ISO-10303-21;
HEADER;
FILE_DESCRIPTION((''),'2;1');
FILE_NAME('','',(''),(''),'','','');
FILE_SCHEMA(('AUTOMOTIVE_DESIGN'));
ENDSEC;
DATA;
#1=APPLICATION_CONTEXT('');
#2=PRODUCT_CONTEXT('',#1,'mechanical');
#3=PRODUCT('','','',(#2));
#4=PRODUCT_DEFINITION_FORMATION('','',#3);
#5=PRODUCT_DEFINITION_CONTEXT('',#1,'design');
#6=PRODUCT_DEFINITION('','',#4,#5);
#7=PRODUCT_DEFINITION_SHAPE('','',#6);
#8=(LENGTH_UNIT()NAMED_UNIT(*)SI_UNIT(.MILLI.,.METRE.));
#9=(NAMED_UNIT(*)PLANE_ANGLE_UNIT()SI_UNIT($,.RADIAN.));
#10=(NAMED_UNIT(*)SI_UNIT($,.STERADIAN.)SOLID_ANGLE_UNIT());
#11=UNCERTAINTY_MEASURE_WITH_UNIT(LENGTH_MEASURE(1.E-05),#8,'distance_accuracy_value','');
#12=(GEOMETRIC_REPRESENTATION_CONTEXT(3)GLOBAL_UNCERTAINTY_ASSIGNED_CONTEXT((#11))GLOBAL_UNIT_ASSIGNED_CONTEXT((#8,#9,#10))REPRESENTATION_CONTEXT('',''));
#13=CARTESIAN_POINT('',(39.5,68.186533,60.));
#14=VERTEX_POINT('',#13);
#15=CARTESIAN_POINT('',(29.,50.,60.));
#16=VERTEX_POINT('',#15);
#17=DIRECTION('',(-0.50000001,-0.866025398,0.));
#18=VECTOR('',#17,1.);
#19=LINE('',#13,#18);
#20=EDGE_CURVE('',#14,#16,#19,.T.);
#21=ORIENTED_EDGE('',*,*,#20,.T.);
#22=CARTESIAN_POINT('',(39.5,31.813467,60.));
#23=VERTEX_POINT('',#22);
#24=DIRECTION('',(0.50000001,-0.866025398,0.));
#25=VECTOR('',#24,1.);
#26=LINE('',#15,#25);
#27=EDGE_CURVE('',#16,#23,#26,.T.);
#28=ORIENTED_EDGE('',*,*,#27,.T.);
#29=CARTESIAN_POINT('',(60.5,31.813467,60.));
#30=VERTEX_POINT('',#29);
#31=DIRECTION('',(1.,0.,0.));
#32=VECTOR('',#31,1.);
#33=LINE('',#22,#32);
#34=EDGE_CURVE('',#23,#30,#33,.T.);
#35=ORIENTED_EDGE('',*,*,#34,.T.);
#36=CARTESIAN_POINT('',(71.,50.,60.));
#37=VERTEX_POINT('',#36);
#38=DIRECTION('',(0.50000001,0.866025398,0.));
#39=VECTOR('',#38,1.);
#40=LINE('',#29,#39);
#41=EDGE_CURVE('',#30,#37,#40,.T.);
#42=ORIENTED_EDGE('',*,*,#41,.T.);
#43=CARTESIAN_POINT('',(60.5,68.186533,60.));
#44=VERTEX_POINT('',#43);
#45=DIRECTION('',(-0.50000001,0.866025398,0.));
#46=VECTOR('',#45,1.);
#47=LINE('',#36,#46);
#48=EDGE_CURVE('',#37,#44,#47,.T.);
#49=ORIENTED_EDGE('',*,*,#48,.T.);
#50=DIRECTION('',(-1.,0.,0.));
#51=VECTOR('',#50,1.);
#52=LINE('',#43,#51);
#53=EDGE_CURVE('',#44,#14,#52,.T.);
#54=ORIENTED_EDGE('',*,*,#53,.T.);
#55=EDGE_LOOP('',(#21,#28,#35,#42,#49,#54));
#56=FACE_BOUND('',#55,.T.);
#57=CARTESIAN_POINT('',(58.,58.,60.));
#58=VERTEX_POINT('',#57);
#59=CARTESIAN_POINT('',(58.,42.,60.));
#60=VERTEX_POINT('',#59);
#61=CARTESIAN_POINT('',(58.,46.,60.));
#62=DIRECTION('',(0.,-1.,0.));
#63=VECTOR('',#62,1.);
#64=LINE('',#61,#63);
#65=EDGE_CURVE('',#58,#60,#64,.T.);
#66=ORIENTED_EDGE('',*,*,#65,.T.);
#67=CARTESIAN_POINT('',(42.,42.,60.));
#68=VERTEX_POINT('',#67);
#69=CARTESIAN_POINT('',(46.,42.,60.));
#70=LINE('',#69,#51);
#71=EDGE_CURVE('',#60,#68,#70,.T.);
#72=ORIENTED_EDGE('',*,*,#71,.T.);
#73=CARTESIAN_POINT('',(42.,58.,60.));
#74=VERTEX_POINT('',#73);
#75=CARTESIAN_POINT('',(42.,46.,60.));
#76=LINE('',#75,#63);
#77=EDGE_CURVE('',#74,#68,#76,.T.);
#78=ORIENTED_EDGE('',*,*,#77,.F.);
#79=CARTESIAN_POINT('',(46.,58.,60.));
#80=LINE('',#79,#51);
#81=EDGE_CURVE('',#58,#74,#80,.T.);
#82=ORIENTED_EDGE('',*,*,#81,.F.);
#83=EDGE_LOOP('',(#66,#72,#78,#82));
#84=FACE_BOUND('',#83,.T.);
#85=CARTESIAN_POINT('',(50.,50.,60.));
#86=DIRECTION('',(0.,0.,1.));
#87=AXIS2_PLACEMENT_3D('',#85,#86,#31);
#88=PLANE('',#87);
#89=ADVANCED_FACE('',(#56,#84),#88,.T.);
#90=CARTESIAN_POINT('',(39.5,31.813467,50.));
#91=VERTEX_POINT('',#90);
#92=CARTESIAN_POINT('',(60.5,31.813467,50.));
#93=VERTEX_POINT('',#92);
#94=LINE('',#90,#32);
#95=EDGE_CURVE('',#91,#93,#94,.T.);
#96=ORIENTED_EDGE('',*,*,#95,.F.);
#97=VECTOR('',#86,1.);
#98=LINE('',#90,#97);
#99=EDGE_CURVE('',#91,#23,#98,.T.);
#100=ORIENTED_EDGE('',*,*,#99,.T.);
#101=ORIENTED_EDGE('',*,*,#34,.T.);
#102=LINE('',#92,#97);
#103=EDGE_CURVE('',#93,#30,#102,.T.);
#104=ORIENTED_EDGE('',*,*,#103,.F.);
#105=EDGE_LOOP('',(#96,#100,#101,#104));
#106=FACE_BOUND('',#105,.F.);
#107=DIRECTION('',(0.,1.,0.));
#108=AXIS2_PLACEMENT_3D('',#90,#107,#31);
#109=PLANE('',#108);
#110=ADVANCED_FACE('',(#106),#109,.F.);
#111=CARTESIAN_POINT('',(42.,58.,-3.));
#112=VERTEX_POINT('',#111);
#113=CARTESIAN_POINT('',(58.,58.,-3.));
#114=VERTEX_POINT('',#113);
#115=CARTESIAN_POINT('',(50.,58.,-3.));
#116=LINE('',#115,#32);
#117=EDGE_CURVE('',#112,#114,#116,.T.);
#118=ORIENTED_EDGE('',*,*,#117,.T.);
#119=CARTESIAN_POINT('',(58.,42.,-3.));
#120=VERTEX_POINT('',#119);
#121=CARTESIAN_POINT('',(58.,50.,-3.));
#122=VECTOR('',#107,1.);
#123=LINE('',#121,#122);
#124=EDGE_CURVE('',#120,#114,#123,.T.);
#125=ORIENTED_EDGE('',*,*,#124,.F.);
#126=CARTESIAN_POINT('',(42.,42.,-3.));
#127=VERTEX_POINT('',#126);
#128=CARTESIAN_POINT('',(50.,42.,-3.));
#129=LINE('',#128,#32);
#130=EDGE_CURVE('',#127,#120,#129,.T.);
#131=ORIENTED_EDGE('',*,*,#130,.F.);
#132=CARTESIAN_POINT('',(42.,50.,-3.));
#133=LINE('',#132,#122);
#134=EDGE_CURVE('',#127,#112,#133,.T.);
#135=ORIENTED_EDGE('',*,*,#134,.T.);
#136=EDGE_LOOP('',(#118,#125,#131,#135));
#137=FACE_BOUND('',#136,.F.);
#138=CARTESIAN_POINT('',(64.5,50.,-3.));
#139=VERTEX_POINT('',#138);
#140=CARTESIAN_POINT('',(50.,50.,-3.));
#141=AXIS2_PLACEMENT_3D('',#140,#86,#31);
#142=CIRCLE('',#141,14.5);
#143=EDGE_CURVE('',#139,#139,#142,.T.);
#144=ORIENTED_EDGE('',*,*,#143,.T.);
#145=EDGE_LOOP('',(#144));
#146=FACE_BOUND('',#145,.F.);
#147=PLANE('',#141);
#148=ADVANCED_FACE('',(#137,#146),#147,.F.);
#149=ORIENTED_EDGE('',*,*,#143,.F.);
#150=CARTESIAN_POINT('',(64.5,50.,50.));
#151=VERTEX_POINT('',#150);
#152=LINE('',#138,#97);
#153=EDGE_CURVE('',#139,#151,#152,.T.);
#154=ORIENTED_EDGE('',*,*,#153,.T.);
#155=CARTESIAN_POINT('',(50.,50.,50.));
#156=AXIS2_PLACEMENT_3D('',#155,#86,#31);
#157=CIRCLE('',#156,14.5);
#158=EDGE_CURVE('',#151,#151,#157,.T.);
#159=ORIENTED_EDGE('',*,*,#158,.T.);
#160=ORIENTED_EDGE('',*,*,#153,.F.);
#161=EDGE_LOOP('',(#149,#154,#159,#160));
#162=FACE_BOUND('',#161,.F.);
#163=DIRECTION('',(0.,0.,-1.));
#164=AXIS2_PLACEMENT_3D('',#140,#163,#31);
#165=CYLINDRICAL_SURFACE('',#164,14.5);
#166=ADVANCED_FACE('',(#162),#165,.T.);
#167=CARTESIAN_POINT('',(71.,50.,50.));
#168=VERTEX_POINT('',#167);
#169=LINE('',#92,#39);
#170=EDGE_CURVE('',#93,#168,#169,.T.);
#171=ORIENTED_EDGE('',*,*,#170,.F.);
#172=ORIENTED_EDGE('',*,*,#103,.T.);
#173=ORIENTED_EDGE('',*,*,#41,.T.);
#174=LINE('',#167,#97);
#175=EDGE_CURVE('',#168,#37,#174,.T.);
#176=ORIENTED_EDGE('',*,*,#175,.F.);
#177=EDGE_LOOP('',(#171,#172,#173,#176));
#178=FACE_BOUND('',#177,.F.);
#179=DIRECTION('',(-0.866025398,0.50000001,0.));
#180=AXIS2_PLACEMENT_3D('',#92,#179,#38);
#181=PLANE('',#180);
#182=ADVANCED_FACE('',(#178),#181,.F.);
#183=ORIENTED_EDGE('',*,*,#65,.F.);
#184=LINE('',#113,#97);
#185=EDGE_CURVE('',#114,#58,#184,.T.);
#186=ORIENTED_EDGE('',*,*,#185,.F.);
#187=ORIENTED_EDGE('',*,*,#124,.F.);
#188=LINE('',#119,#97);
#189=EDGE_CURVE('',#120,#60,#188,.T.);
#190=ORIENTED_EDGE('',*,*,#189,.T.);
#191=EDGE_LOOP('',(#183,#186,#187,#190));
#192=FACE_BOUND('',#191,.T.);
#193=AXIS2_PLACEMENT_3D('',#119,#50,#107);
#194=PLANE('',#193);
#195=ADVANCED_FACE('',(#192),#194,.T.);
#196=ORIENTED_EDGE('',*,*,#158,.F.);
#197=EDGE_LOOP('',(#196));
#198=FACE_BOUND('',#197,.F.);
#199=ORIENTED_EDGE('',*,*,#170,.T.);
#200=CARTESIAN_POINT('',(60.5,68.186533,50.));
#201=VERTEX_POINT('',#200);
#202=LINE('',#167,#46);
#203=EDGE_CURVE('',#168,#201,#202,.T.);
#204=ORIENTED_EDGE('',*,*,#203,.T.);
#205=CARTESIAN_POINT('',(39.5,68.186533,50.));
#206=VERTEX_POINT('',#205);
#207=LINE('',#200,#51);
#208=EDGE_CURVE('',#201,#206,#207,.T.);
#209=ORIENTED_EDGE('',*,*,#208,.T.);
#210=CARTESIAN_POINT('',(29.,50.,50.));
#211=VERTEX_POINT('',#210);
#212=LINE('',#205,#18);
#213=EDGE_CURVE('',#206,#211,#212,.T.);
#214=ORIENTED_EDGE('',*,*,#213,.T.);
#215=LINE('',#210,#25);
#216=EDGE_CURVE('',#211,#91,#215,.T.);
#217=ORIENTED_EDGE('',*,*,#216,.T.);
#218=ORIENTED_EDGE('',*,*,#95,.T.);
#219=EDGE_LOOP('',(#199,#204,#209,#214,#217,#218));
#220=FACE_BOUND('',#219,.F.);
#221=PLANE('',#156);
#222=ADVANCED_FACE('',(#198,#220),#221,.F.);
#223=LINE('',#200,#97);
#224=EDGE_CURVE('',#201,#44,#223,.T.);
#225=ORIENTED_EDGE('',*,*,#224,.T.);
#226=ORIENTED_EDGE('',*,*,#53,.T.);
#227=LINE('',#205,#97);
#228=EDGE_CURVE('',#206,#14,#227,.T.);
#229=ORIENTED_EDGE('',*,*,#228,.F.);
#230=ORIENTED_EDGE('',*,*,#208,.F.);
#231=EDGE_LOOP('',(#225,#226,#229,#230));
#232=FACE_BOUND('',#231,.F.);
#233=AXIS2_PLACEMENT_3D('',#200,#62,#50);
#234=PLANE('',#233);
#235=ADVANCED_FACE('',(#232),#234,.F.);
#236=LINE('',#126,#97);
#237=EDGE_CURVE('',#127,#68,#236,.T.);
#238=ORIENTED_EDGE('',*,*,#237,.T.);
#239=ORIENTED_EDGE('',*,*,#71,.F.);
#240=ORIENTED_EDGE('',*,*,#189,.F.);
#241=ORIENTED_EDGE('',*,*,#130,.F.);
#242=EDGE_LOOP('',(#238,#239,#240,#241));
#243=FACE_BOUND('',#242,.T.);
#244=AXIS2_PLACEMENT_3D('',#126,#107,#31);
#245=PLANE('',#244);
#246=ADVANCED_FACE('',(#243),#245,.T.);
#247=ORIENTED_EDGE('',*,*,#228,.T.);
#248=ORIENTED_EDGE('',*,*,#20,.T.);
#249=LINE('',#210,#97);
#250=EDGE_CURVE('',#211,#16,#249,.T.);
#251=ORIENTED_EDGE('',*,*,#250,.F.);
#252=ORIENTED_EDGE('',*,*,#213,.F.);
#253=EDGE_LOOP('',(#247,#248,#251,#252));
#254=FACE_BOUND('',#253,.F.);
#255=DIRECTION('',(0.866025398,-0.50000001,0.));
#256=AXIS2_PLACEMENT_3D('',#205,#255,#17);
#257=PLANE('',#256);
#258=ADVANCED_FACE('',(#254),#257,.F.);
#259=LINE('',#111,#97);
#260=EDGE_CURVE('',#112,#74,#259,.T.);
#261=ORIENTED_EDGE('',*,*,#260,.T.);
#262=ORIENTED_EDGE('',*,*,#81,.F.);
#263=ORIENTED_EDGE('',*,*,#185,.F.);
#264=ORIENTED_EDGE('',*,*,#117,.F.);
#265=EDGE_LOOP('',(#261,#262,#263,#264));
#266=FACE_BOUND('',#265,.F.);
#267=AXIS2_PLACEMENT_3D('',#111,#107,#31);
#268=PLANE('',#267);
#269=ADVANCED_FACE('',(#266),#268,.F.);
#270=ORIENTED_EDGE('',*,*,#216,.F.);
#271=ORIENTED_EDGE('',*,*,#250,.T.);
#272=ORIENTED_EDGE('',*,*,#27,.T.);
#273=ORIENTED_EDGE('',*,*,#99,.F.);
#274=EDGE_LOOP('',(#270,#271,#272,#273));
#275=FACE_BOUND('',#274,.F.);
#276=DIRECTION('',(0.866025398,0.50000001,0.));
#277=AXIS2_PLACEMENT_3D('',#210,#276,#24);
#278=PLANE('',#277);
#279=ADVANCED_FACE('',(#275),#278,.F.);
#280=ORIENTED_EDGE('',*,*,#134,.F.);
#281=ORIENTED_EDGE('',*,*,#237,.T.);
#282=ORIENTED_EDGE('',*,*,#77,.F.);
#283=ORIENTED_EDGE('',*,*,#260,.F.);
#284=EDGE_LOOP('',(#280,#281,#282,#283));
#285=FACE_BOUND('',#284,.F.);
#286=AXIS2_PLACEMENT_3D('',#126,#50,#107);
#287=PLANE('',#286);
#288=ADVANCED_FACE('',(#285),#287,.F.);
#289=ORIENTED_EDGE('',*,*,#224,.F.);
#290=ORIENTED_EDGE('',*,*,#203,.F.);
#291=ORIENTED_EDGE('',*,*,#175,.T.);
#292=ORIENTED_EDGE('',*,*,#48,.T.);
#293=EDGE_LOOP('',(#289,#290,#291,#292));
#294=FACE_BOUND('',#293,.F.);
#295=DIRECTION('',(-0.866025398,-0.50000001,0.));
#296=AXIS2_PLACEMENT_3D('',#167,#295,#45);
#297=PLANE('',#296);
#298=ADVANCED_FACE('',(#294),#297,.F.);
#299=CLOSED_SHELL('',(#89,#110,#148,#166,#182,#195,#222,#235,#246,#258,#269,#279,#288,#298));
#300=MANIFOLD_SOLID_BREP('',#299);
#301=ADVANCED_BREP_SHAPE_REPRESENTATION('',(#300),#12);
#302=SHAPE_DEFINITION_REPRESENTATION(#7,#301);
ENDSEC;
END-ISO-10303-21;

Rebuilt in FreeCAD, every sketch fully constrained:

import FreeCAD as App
import Part
import Sketcher

V = App.Vector
Q = App.Units.Quantity


def add_polygon(sketch, points):
    """Adds a closed chain of lines whose ends are joined by coincident constraints."""
    first, n = sketch.GeometryCount, len(points)
    for a, b in zip(points, points[1:] + points[:1]):
        sketch.addGeometry(Part.LineSegment(App.Vector(*a, 0), App.Vector(*b, 0)), False)
    for i in range(n):
        sketch.addConstraint(Sketcher.Constraint("Coincident", first + i, 2, first + (i + 1) % n, 1))

doc = App.newDocument("Part")
params = doc.addObject("Spreadsheet::Sheet", "Params")
for row, (alias, value) in enumerate([
    ("sketch1_diameter", "29 mm"),
    ("pad1_length", "53 mm"),
    ("sketch2_width", "21 mm"),
    ("sketch2_length", "21 mm"),
    ("pad2_length", "10 mm"),
    ("sketch3_width", "16 mm"),
    ("pocket1_length", "70 mm"),
], start=1):
    params.set(f"A{row}", alias)
    params.set(f"B{row}", "=" + value)
    params.setAlias(f"B{row}", alias)

body = doc.addObject("PartDesign::Body", "Body")

# Sketch on XY plane
sketch1 = body.newObject("Sketcher::SketchObject", "Sketch")
sketch1.AttachmentSupport = (doc.getObject("XY_Plane"), [""])
sketch1.MapMode = "FlatFace"
sketch1.addGeometry(Part.Circle(V(0, 0, 0), V(0, 0, 1), 14), False)
sketch1.addConstraint(Sketcher.Constraint("Coincident", 0, 3, -1, 1))
sketch1.addConstraint(Sketcher.Constraint("Diameter", 0, 29.0))
sketch1.setExpression("Constraints[1]", "Params.sketch1_diameter")
pad1 = body.newObject("PartDesign::Pad", "Pad")
pad1.Profile = sketch1
pad1.setExpression("Length", "Params.pad1_length")

# Sketch on XY plane
sketch2 = body.newObject("Sketcher::SketchObject", "Sketch001")
sketch2.AttachmentSupport = (doc.getObject("XY_Plane"), [""])
sketch2.MapMode = "FlatFace"
sketch2.AttachmentOffset = App.Placement(V(0, 0, 53), App.Rotation())
add_polygon(sketch2, [(21, 0), (10, 18), (-10, 18), (-21, 0), (-10, -18), (10, -18)])  # lines 0-5
sketch2.addConstraint(Sketcher.Constraint("Horizontal", 1))
sketch2.addConstraint(Sketcher.Constraint("Horizontal", 4))
sketch2.addConstraint(Sketcher.Constraint("Symmetric", 0, 2, 3, 2, -1, 1))
sketch2.addConstraint(Sketcher.Constraint("Symmetric", 2, 2, 5, 2, -1, 1))
sketch2.addConstraint(Sketcher.Constraint("PointOnObject", 2, 2, -1))
sketch2.addConstraint(Sketcher.Constraint("Parallel", 2, 5))
sketch2.addConstraint(Sketcher.Constraint("Vertical", 1, 2, 3, 2))
sketch2.addConstraint(Sketcher.Constraint("DistanceX", 1, 2, 1, 1, 21.0))
sketch2.addConstraint(Sketcher.Constraint("Angle", 0, Q("120.000001 deg")))
sketch2.addConstraint(Sketcher.Constraint("Distance", 0, 21.0))
sketch2.setExpression("Constraints[13]", "Params.sketch2_width")
sketch2.setExpression("Constraints[15]", "Params.sketch2_length")
pad2 = body.newObject("PartDesign::Pad", "Pad001")
pad2.Profile = sketch2
pad2.setExpression("Length", "Params.pad2_length")

# Sketch on XY plane
sketch3 = body.newObject("Sketcher::SketchObject", "Sketch002")
sketch3.AttachmentSupport = (doc.getObject("XY_Plane"), [""])
sketch3.MapMode = "FlatFace"
add_polygon(sketch3, [(-8, 8), (-8, -8), (8, -8), (8, 8)])  # lines 0-3
sketch3.addConstraint(Sketcher.Constraint("Vertical", 0))
sketch3.addConstraint(Sketcher.Constraint("Horizontal", 1))
sketch3.addConstraint(Sketcher.Constraint("Vertical", 2))
sketch3.addConstraint(Sketcher.Constraint("Horizontal", 3))
sketch3.addConstraint(Sketcher.Constraint("Symmetric", 0, 2, 2, 2, -1, 1))
sketch3.addConstraint(Sketcher.Constraint("Equal", 3, 0))
sketch3.addConstraint(Sketcher.Constraint("DistanceX", 1, 1, 1, 2, 16.0))
sketch3.setExpression("Constraints[10]", "Params.sketch3_width")
pocket1 = body.newObject("PartDesign::Pocket", "Pocket")
pocket1.Profile = sketch3
pocket1.setExpression("Length", "Params.pocket1_length")
pocket1.Reversed = True
body2 = doc.addObject("PartDesign::Body", "Body001")
doc.recompute()

body.Placement = App.Placement(V(50, 50, -3), App.Rotation(V(0, 0, 1), 0))
boolean = body2.newObject("PartDesign::Boolean", "Boolean")
boolean.Type = "Fuse"
boolean.addObjects([body])

doc.recompute()
